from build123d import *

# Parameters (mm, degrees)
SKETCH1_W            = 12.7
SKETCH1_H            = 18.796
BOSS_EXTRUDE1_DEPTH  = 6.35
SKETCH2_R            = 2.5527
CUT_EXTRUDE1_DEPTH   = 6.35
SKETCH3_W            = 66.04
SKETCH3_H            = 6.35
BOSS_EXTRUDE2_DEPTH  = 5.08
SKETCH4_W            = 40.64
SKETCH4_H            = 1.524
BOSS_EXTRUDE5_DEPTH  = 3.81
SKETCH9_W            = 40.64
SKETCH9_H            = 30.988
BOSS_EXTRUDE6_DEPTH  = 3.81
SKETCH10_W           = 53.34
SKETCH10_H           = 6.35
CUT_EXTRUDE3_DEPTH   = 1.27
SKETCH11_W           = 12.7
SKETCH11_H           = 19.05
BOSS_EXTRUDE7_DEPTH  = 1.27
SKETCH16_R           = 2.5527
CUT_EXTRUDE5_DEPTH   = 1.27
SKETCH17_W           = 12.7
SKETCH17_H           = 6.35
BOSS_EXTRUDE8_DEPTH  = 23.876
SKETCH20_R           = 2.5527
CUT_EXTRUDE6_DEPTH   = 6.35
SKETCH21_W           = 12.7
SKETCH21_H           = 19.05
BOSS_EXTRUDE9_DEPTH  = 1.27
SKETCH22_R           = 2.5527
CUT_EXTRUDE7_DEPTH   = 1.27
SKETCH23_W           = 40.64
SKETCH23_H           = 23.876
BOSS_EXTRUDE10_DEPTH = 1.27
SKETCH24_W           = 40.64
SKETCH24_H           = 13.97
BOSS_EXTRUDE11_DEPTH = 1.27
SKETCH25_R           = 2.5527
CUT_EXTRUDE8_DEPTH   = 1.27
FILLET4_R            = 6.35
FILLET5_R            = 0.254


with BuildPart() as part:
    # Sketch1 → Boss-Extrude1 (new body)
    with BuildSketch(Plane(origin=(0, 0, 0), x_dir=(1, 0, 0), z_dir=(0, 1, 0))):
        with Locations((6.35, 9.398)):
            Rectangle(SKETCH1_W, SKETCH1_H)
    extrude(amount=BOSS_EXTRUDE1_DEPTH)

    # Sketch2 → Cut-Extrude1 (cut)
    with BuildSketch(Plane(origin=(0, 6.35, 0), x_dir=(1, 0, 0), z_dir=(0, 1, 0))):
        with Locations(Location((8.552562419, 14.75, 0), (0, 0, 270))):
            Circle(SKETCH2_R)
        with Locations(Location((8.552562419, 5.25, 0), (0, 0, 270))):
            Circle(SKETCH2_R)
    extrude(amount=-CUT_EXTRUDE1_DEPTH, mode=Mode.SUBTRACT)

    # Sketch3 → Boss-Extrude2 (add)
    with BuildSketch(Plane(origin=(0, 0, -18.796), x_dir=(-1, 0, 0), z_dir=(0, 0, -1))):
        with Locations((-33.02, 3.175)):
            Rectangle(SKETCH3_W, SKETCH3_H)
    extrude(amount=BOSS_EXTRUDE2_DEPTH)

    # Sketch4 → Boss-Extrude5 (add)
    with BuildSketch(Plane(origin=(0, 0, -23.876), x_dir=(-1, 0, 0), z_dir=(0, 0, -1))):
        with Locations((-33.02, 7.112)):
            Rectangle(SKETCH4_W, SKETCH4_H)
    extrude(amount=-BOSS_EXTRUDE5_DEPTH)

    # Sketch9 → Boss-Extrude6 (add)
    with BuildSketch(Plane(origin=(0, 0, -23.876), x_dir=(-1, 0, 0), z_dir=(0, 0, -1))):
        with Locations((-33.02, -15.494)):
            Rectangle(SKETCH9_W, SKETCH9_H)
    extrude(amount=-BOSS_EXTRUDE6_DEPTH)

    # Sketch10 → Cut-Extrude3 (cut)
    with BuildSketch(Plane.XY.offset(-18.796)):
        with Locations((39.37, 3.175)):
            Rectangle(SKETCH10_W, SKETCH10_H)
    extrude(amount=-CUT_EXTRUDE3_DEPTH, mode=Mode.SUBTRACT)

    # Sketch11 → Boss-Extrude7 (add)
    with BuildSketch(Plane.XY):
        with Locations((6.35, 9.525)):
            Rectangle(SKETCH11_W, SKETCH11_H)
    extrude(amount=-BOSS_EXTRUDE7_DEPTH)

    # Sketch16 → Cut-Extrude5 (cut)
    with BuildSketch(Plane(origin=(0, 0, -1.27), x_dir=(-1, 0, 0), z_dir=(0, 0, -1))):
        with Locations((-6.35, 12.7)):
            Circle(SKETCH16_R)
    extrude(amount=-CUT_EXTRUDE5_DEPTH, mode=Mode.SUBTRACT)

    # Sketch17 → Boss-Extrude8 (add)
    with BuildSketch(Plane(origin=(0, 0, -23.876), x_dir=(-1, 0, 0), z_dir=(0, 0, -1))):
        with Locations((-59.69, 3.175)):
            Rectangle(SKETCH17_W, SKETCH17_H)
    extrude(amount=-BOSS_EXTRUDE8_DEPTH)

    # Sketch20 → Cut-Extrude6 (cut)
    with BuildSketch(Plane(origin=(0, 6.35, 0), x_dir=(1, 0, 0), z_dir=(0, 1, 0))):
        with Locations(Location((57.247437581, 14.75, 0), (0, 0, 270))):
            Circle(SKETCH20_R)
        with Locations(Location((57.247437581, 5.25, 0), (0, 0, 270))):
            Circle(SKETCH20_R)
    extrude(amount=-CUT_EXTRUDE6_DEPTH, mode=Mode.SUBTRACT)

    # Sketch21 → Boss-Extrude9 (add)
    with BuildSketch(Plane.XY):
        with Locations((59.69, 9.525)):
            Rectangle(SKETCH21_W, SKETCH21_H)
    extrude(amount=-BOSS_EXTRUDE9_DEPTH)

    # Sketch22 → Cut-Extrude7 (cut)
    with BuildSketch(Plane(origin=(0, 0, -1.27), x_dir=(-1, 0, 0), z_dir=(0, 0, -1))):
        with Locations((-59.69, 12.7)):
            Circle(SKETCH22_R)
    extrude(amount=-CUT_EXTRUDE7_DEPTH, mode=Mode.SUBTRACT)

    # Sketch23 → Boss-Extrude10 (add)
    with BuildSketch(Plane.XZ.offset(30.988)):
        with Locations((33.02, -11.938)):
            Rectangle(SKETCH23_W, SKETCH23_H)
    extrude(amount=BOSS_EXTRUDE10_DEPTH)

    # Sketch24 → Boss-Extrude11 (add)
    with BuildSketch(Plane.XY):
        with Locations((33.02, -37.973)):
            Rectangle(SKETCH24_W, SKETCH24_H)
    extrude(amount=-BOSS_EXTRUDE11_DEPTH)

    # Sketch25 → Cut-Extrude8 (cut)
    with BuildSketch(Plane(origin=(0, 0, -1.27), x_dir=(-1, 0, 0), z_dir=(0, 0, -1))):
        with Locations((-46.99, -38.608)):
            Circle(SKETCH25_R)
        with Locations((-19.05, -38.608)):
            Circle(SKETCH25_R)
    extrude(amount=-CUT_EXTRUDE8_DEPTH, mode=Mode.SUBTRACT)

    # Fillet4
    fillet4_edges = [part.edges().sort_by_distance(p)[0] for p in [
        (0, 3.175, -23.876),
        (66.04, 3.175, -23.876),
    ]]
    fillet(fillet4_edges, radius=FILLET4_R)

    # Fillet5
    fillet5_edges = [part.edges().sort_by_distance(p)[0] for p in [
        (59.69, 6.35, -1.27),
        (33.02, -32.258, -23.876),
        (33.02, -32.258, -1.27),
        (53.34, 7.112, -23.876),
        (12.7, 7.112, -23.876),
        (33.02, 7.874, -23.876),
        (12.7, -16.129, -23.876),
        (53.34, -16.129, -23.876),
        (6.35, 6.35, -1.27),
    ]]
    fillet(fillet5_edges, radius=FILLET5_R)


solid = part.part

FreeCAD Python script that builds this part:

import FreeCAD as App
import Part
import Sketcher
from FreeCAD import Vector
Q = App.Units.Quantity


def edges_at(feature, points):
    """Names of the edges that pass closest to the given points."""
    edges = feature.Shape.Edges
    near = lambda p: min(range(len(edges)), key=lambda i: edges[i].distToShape(Part.Vertex(*p))[0])
    return sorted({f"Edge{near(p) + 1}" for p in points})


def add_polygon(sketch, points):
    """Adds a closed chain of lines whose ends are joined by coincident constraints."""
    first, n = sketch.GeometryCount, len(points)
    for a, b in zip(points, points[1:] + points[:1]):
        sketch.addGeometry(Part.LineSegment(App.Vector(*a, 0), App.Vector(*b, 0)), False)
    for i in range(n):
        sketch.addConstraint(Sketcher.Constraint("Coincident", first + i, 2, first + (i + 1) % n, 1))

doc = App.newDocument("Part")
body = doc.addObject("PartDesign::Body", "Body")

sketch1 = body.newObject("Sketcher::SketchObject", "Sketch")
sketch1.AttachmentSupport = (doc.getObject("XZ_Plane"), [""])
sketch1.MapMode = "FlatFace"
add_polygon(sketch1, [(0, -19), (0, 0), (13, 0), (13, -19)])
sketch1.addConstraint(Sketcher.Constraint("Vertical", 0))
sketch1.addConstraint(Sketcher.Constraint("Horizontal", 1))
sketch1.addConstraint(Sketcher.Constraint("Vertical", 2))
sketch1.addConstraint(Sketcher.Constraint("Horizontal", 3))
sketch1.addConstraint(Sketcher.Constraint("Coincident", 0, 2, -1, 1))
sketch1.addConstraint(Sketcher.Constraint("DistanceX", 1, 1, 1, 2, Q("0.5 in")))
sketch1.addConstraint(Sketcher.Constraint("DistanceY", 0, 1, 0, 2, Q("0.74 in")))
pad1 = body.newObject("PartDesign::Pad", "Pad")
pad1.Profile = sketch1
pad1.Length = Q("0.25 in")
pad1.Reversed = True

sketch2 = body.newObject("Sketcher::SketchObject", "Sketch001")
sketch2.AttachmentSupport = (doc.getObject("XZ_Plane"), [""])
sketch2.MapMode = "FlatFace"
sketch2.AttachmentOffset = App.Placement(Vector(0, 0, -0.25 * 25.4), App.Rotation())
sketch2.addGeometry(Part.Circle(Vector(8.6, -14.8, 0), Vector(0, 0, 1), 2.6), False)
sketch2.addGeometry(Part.Circle(Vector(8.6, -5.2, 0), Vector(0, 0, 1), 2.6), False)
sketch2.addConstraint(Sketcher.Constraint("Equal", 0, 1))
sketch2.addConstraint(Sketcher.Constraint("Vertical", 0, 3, 1, 3))
sketch2.addConstraint(Sketcher.Constraint("Diameter", 0, Q("0.201 in")))
sketch2.addConstraint(Sketcher.Constraint("DistanceY", 0, 3, -1, 1, Q("14.75 mm")))
sketch2.addConstraint(Sketcher.Constraint("DistanceY", 1, 3, -1, 1, Q("5.25 mm")))
sketch2.addConstraint(Sketcher.Constraint("DistanceX", -1, 1, 0, 3, Q("8.552562 mm")))
pocket1 = body.newObject("PartDesign::Pocket", "Pocket")
pocket1.Profile = sketch2
pocket1.Length = Q("0.25 in")
pocket1.Reversed = True

sketch3 = body.newObject("Sketcher::SketchObject", "Sketch002")
sketch3.AttachmentSupport = (doc.getObject("XY_Plane"), [""])
sketch3.MapMode = "FlatFace"
sketch3.AttachmentOffset = App.Placement(Vector(0, 0, -0.74 * 25.4), App.Rotation())
add_polygon(sketch3, [(66, 6), (66, 0), (0, 0), (0, 6)])
sketch3.addConstraint(Sketcher.Constraint("Vertical", 0))
sketch3.addConstraint(Sketcher.Constraint("Horizontal", 1))
sketch3.addConstraint(Sketcher.Constraint("Vertical", 2))
sketch3.addConstraint(Sketcher.Constraint("Horizontal", 3))
sketch3.addConstraint(Sketcher.Constraint("Coincident", 1, 2, -1, 1))
sketch3.addConstraint(Sketcher.Constraint("DistanceX", 1, 2, 1, 1, Q("2.6 in")))
sketch3.addConstraint(Sketcher.Constraint("DistanceY", 0, 2, 0, 1, Q("0.25 in")))
pad2 = body.newObject("PartDesign::Pad", "Pad001")
pad2.Profile = sketch3
pad2.Length = Q("0.2 in")
pad2.Reversed = True

sketch4 = body.newObject("Sketcher::SketchObject", "Sketch003")
sketch4.AttachmentSupport = (doc.getObject("XY_Plane"), [""])
sketch4.MapMode = "FlatFace"
sketch4.AttachmentOffset = App.Placement(Vector(0, 0, -0.94 * 25.4), App.Rotation())
add_polygon(sketch4, [(53.3, 7.9), (53.3, 6.3), (12.7, 6.3), (12.7, 7.9)])
sketch4.addConstraint(Sketcher.Constraint("Vertical", 0))
sketch4.addConstraint(Sketcher.Constraint("Horizontal", 1))
sketch4.addConstraint(Sketcher.Constraint("Vertical", 2))
sketch4.addConstraint(Sketcher.Constraint("Horizontal", 3))
sketch4.addConstraint(Sketcher.Constraint("DistanceX", 1, 2, 1, 1, Q("1.6 in")))
sketch4.addConstraint(Sketcher.Constraint("DistanceY", 0, 2, 0, 1, Q("0.06 in")))
sketch4.addConstraint(Sketcher.Constraint("DistanceX", -1, 1, 0, 2, Q("2.1 in")))
sketch4.addConstraint(Sketcher.Constraint("DistanceY", -1, 1, 0, 2, Q("0.25 in")))
pad3 = body.newObject("PartDesign::Pad", "Pad002")
pad3.Profile = sketch4
pad3.Length = Q("0.15 in")

sketch5 = body.newObject("Sketcher::SketchObject", "Sketch004")
sketch5.AttachmentSupport = (doc.getObject("XY_Plane"), [""])
sketch5.MapMode = "FlatFace"
sketch5.AttachmentOffset = App.Placement(Vector(0, 0, -0.94 * 25.4), App.Rotation())
add_polygon(sketch5, [(53, 0), (53, -31), (13, -31), (13, 0)])
sketch5.addConstraint(Sketcher.Constraint("Vertical", 0))
sketch5.addConstraint(Sketcher.Constraint("Horizontal", 1))
sketch5.addConstraint(Sketcher.Constraint("Vertical", 2))
sketch5.addConstraint(Sketcher.Constraint("Horizontal", 3))
sketch5.addConstraint(Sketcher.Constraint("PointOnObject", 2, 2, -1))
sketch5.addConstraint(Sketcher.Constraint("DistanceX", 1, 2, 1, 1, Q("1.6 in")))
sketch5.addConstraint(Sketcher.Constraint("DistanceY", 0, 2, 0, 1, Q("1.22 in")))
sketch5.addConstraint(Sketcher.Constraint("DistanceX", -1, 1, 0, 2, Q("2.1 in")))
pad4 = body.newObject("PartDesign::Pad", "Pad003")
pad4.Profile = sketch5
pad4.Length = Q("0.15 in")

sketch6 = body.newObject("Sketcher::SketchObject", "Sketch005")
sketch6.AttachmentSupport = (doc.getObject("XY_Plane"), [""])
sketch6.MapMode = "FlatFace"
sketch6.AttachmentOffset = App.Placement(Vector(0, 0, -0.74 * 25.4), App.Rotation())
add_polygon(sketch6, [(13, 6), (13, 0), (66, 0), (66, 6)])
sketch6.addConstraint(Sketcher.Constraint("Vertical", 0))
sketch6.addConstraint(Sketcher.Constraint("Horizontal", 1))
sketch6.addConstraint(Sketcher.Constraint("Vertical", 2))
sketch6.addConstraint(Sketcher.Constraint("Horizontal", 3))
sketch6.addConstraint(Sketcher.Constraint("PointOnObject", 0, 2, -1))
sketch6.addConstraint(Sketcher.Constraint("DistanceX", 1, 1, 1, 2, Q("2.1 in")))
sketch6.addConstraint(Sketcher.Constraint("DistanceY", 0, 2, 0, 1, Q("0.25 in")))
sketch6.addConstraint(Sketcher.Constraint("DistanceX", -1, 1, 0, 2, Q("0.5 in")))
pocket2 = body.newObject("PartDesign::Pocket", "Pocket001")
pocket2.Profile = sketch6
pocket2.Length = Q("0.05 in")

sketch7 = body.newObject("Sketcher::SketchObject", "Sketch006")
sketch7.AttachmentSupport = (doc.getObject("XY_Plane"), [""])
sketch7.MapMode = "FlatFace"
add_polygon(sketch7, [(0, 19), (0, 0), (13, 0), (13, 19)])
sketch7.addConstraint(Sketcher.Constraint("Vertical", 0))
sketch7.addConstraint(Sketcher.Constraint("Horizontal", 1))
sketch7.addConstraint(Sketcher.Constraint("Vertical", 2))
sketch7.addConstraint(Sketcher.Constraint("Horizontal", 3))
sketch7.addConstraint(Sketcher.Constraint("Coincident", 0, 2, -1, 1))
sketch7.addConstraint(Sketcher.Constraint("DistanceX", 1, 1, 1, 2, Q("0.5 in")))
sketch7.addConstraint(Sketcher.Constraint("DistanceY", 0, 2, 0, 1, Q("0.75 in")))
pad5 = body.newObject("PartDesign::Pad", "Pad004")
pad5.Profile = sketch7
pad5.Length = Q("0.05 in")
pad5.Reversed = True

sketch8 = body.newObject("Sketcher::SketchObject", "Sketch007")
sketch8.AttachmentSupport = (doc.getObject("XY_Plane"), [""])
sketch8.MapMode = "FlatFace"
sketch8.AttachmentOffset = App.Placement(Vector(0, 0, -0.05 * 25.4), App.Rotation())
sketch8.addGeometry(Part.Circle(Vector(6.3, 12.7, 0), Vector(0, 0, 1), 2.6), False)
sketch8.addConstraint(Sketcher.Constraint("Diameter", 0, Q("0.201 in")))
sketch8.addConstraint(Sketcher.Constraint("DistanceY", -1, 1, 0, 3, Q("0.5 in")))
sketch8.addConstraint(Sketcher.Constraint("DistanceX", -1, 1, 0, 3, Q("0.25 in")))
pocket3 = body.newObject("PartDesign::Pocket", "Pocket002")
pocket3.Profile = sketch8
pocket3.Length = Q("0.05 in")
pocket3.Reversed = True

sketch9 = body.newObject("Sketcher::SketchObject", "Sketch008")
sketch9.AttachmentSupport = (doc.getObject("XY_Plane"), [""])
sketch9.MapMode = "FlatFace"
sketch9.AttachmentOffset = App.Placement(Vector(0, 0, -0.94 * 25.4), App.Rotation())
add_polygon(sketch9, [(66, 6), (66, 0), (53, 0), (53, 6)])
sketch9.addConstraint(Sketcher.Constraint("Vertical", 0))
sketch9.addConstraint(Sketcher.Constraint("Horizontal", 1))
sketch9.addConstraint(Sketcher.Constraint("Vertical", 2))
sketch9.addConstraint(Sketcher.Constraint("Horizontal", 3))
sketch9.addConstraint(Sketcher.Constraint("PointOnObject", 0, 2, -1))
sketch9.addConstraint(Sketcher.Constraint("DistanceX", 1, 2, 1, 1, Q("0.5 in")))
sketch9.addConstraint(Sketcher.Constraint("DistanceY", 0, 2, 0, 1, Q("0.25 in")))
sketch9.addConstraint(Sketcher.Constraint("DistanceX", -1, 1, 0, 2, Q("2.6 in")))
pad6 = body.newObject("PartDesign::Pad", "Pad005")
pad6.Profile = sketch9
pad6.Length = Q("0.94 in")

sketch10 = body.newObject("Sketcher::SketchObject", "Sketch009")
sketch10.AttachmentSupport = (doc.getObject("XZ_Plane"), [""])
sketch10.MapMode = "FlatFace"
sketch10.AttachmentOffset = App.Placement(Vector(0, 0, -0.25 * 25.4), App.Rotation())
sketch10.addGeometry(Part.Circle(Vector(57.2, -14.8, 0), Vector(0, 0, 1), 2.6), False)
sketch10.addGeometry(Part.Circle(Vector(57.2, -5.2, 0), Vector(0, 0, 1), 2.6), False)
sketch10.addConstraint(Sketcher.Constraint("Equal", 0, 1))
sketch10.addConstraint(Sketcher.Constraint("Vertical", 0, 3, 1, 3))
sketch10.addConstraint(Sketcher.Constraint("Diameter", 0, Q("0.201 in")))
sketch10.addConstraint(Sketcher.Constraint("DistanceY", 0, 3, -1, 1, Q("14.75 mm")))
sketch10.addConstraint(Sketcher.Constraint("DistanceY", 1, 3, -1, 1, Q("5.25 mm")))
sketch10.addConstraint(Sketcher.Constraint("DistanceX", -1, 1, 0, 3, Q("57.247438 mm")))
pocket4 = body.newObject("PartDesign::Pocket", "Pocket003")
pocket4.Profile = sketch10
pocket4.Length = Q("0.25 in")
pocket4.Reversed = True

sketch11 = body.newObject("Sketcher::SketchObject", "Sketch010")
sketch11.AttachmentSupport = (doc.getObject("XY_Plane"), [""])
sketch11.MapMode = "FlatFace"
add_polygon(sketch11, [(53, 19), (53, 0), (66, 0), (66, 19)])
sketch11.addConstraint(Sketcher.Constraint("Vertical", 0))
sketch11.addConstraint(Sketcher.Constraint("Horizontal", 1))
sketch11.addConstraint(Sketcher.Constraint("Vertical", 2))
sketch11.addConstraint(Sketcher.Constraint("Horizontal", 3))
sketch11.addConstraint(Sketcher.Constraint("PointOnObject", 0, 2, -1))
sketch11.addConstraint(Sketcher.Constraint("DistanceX", 1, 1, 1, 2, Q("0.5 in")))
sketch11.addConstraint(Sketcher.Constraint("DistanceY", 0, 2, 0, 1, Q("0.75 in")))
sketch11.addConstraint(Sketcher.Constraint("DistanceX", -1, 1, 0, 2, Q("2.1 in")))
pad7 = body.newObject("PartDesign::Pad", "Pad006")
pad7.Profile = sketch11
pad7.Length = Q("0.05 in")
pad7.Reversed = True

sketch12 = body.newObject("Sketcher::SketchObject", "Sketch011")
sketch12.AttachmentSupport = (doc.getObject("XY_Plane"), [""])
sketch12.MapMode = "FlatFace"
sketch12.AttachmentOffset = App.Placement(Vector(0, 0, -0.05 * 25.4), App.Rotation())
sketch12.addGeometry(Part.Circle(Vector(59.7, 12.7, 0), Vector(0, 0, 1), 2.6), False)
sketch12.addConstraint(Sketcher.Constraint("Diameter", 0, Q("0.201 in")))
sketch12.addConstraint(Sketcher.Constraint("DistanceY", -1, 1, 0, 3, Q("0.5 in")))
sketch12.addConstraint(Sketcher.Constraint("DistanceX", -1, 1, 0, 3, Q("2.35 in")))
pocket5 = body.newObject("PartDesign::Pocket", "Pocket004")
pocket5.Profile = sketch12
pocket5.Length = Q("0.05 in")
pocket5.Reversed = True

sketch13 = body.newObject("Sketcher::SketchObject", "Sketch012")
sketch13.AttachmentSupport = (doc.getObject("XZ_Plane"), [""])
sketch13.MapMode = "FlatFace"
sketch13.AttachmentOffset = App.Placement(Vector(0, 0, 1.22 * 25.4), App.Rotation())
add_polygon(sketch13, [(13, 0), (13, -24), (53, -24), (53, 0)])
sketch13.addConstraint(Sketcher.Constraint("Vertical", 0))
sketch13.addConstraint(Sketcher.Constraint("Horizontal", 1))
sketch13.addConstraint(Sketcher.Constraint("Vertical", 2))
sketch13.addConstraint(Sketcher.Constraint("Horizontal", 3))
sketch13.addConstraint(Sketcher.Constraint("PointOnObject", 2, 2, -1))
sketch13.addConstraint(Sketcher.Constraint("DistanceX", 1, 1, 1, 2, Q("1.6 in")))
sketch13.addConstraint(Sketcher.Constraint("DistanceY", 0, 2, 0, 1, Q("0.94 in")))
sketch13.addConstraint(Sketcher.Constraint("DistanceX", -1, 1, 0, 2, Q("0.5 in")))
pad8 = body.newObject("PartDesign::Pad", "Pad007")
pad8.Profile = sketch13
pad8.Length = Q("0.05 in")

sketch14 = body.newObject("Sketcher::SketchObject", "Sketch013")
sketch14.AttachmentSupport = (doc.getObject("XY_Plane"), [""])
sketch14.MapMode = "FlatFace"
add_polygon(sketch14, [(13, -31), (13, -45), (53, -45), (53, -31)])
sketch14.addConstraint(Sketcher.Constraint("Vertical", 0))
sketch14.addConstraint(Sketcher.Constraint("Horizontal", 1))
sketch14.addConstraint(Sketcher.Constraint("Vertical", 2))
sketch14.addConstraint(Sketcher.Constraint("Horizontal", 3))
sketch14.addConstraint(Sketcher.Constraint("DistanceX", 1, 1, 1, 2, Q("1.6 in")))
sketch14.addConstraint(Sketcher.Constraint("DistanceY", 0, 2, 0, 1, Q("0.55 in")))
sketch14.addConstraint(Sketcher.Constraint("DistanceX", -1, 1, 0, 2, Q("0.5 in")))
sketch14.addConstraint(Sketcher.Constraint("DistanceY", 0, 2, -1, 1, Q("1.77 in")))
pad9 = body.newObject("PartDesign::Pad", "Pad008")
pad9.Profile = sketch14
pad9.Length = Q("0.05 in")
pad9.Reversed = True

sketch15 = body.newObject("Sketcher::SketchObject", "Sketch014")
sketch15.AttachmentSupport = (doc.getObject("XY_Plane"), [""])
sketch15.MapMode = "FlatFace"
sketch15.AttachmentOffset = App.Placement(Vector(0, 0, -0.05 * 25.4), App.Rotation())
sketch15.addGeometry(Part.Circle(Vector(47, -38.6, 0), Vector(0, 0, 1), 2.6), False)
sketch15.addGeometry(Part.Circle(Vector(19.1, -38.6, 0), Vector(0, 0, 1), 2.6), False)
sketch15.addConstraint(Sketcher.Constraint("Equal", 0, 1))
sketch15.addConstraint(Sketcher.Constraint("Horizontal", 0, 3, 1, 3))
sketch15.addConstraint(Sketcher.Constraint("Diameter", 0, Q("0.201 in")))
sketch15.addConstraint(Sketcher.Constraint("DistanceX", 1, 3, 0, 3, Q("1.1 in")))
sketch15.addConstraint(Sketcher.Constraint("DistanceX", -1, 1, 0, 3, Q("1.85 in")))
sketch15.addConstraint(Sketcher.Constraint("DistanceY", 0, 3, -1, 1, Q("1.52 in")))
pocket6 = body.newObject("PartDesign::Pocket", "Pocket005")
pocket6.Profile = sketch15
pocket6.Length = Q("0.05 in")
pocket6.Reversed = True
doc.recompute()

fillet = body.newObject("PartDesign::Fillet", "Fillet")
fillet.Base = (pocket6, edges_at(pocket6, [(0, 3.175, -23.876), (66.04, 3.175, -23.876)]))
fillet.Radius = Q("0.25 in")
doc.recompute()

fillet2 = body.newObject("PartDesign::Fillet", "Fillet001")
fillet2.Base = (fillet, edges_at(fillet, [
    (59.69, 6.35, -1.27),
    (33.02, -32.258, -23.876),
    (33.02, -32.258, -1.27),
    (53.34, 7.112, -23.876),
    (12.7, 7.112, -23.876),
    (33.02, 7.874, -23.876),
    (12.7, -16.129, -23.876),
    (53.34, -16.129, -23.876),
    (6.35, 6.35, -1.27),
]))
fillet2.Radius = Q("0.01 in")

doc.recompute()
